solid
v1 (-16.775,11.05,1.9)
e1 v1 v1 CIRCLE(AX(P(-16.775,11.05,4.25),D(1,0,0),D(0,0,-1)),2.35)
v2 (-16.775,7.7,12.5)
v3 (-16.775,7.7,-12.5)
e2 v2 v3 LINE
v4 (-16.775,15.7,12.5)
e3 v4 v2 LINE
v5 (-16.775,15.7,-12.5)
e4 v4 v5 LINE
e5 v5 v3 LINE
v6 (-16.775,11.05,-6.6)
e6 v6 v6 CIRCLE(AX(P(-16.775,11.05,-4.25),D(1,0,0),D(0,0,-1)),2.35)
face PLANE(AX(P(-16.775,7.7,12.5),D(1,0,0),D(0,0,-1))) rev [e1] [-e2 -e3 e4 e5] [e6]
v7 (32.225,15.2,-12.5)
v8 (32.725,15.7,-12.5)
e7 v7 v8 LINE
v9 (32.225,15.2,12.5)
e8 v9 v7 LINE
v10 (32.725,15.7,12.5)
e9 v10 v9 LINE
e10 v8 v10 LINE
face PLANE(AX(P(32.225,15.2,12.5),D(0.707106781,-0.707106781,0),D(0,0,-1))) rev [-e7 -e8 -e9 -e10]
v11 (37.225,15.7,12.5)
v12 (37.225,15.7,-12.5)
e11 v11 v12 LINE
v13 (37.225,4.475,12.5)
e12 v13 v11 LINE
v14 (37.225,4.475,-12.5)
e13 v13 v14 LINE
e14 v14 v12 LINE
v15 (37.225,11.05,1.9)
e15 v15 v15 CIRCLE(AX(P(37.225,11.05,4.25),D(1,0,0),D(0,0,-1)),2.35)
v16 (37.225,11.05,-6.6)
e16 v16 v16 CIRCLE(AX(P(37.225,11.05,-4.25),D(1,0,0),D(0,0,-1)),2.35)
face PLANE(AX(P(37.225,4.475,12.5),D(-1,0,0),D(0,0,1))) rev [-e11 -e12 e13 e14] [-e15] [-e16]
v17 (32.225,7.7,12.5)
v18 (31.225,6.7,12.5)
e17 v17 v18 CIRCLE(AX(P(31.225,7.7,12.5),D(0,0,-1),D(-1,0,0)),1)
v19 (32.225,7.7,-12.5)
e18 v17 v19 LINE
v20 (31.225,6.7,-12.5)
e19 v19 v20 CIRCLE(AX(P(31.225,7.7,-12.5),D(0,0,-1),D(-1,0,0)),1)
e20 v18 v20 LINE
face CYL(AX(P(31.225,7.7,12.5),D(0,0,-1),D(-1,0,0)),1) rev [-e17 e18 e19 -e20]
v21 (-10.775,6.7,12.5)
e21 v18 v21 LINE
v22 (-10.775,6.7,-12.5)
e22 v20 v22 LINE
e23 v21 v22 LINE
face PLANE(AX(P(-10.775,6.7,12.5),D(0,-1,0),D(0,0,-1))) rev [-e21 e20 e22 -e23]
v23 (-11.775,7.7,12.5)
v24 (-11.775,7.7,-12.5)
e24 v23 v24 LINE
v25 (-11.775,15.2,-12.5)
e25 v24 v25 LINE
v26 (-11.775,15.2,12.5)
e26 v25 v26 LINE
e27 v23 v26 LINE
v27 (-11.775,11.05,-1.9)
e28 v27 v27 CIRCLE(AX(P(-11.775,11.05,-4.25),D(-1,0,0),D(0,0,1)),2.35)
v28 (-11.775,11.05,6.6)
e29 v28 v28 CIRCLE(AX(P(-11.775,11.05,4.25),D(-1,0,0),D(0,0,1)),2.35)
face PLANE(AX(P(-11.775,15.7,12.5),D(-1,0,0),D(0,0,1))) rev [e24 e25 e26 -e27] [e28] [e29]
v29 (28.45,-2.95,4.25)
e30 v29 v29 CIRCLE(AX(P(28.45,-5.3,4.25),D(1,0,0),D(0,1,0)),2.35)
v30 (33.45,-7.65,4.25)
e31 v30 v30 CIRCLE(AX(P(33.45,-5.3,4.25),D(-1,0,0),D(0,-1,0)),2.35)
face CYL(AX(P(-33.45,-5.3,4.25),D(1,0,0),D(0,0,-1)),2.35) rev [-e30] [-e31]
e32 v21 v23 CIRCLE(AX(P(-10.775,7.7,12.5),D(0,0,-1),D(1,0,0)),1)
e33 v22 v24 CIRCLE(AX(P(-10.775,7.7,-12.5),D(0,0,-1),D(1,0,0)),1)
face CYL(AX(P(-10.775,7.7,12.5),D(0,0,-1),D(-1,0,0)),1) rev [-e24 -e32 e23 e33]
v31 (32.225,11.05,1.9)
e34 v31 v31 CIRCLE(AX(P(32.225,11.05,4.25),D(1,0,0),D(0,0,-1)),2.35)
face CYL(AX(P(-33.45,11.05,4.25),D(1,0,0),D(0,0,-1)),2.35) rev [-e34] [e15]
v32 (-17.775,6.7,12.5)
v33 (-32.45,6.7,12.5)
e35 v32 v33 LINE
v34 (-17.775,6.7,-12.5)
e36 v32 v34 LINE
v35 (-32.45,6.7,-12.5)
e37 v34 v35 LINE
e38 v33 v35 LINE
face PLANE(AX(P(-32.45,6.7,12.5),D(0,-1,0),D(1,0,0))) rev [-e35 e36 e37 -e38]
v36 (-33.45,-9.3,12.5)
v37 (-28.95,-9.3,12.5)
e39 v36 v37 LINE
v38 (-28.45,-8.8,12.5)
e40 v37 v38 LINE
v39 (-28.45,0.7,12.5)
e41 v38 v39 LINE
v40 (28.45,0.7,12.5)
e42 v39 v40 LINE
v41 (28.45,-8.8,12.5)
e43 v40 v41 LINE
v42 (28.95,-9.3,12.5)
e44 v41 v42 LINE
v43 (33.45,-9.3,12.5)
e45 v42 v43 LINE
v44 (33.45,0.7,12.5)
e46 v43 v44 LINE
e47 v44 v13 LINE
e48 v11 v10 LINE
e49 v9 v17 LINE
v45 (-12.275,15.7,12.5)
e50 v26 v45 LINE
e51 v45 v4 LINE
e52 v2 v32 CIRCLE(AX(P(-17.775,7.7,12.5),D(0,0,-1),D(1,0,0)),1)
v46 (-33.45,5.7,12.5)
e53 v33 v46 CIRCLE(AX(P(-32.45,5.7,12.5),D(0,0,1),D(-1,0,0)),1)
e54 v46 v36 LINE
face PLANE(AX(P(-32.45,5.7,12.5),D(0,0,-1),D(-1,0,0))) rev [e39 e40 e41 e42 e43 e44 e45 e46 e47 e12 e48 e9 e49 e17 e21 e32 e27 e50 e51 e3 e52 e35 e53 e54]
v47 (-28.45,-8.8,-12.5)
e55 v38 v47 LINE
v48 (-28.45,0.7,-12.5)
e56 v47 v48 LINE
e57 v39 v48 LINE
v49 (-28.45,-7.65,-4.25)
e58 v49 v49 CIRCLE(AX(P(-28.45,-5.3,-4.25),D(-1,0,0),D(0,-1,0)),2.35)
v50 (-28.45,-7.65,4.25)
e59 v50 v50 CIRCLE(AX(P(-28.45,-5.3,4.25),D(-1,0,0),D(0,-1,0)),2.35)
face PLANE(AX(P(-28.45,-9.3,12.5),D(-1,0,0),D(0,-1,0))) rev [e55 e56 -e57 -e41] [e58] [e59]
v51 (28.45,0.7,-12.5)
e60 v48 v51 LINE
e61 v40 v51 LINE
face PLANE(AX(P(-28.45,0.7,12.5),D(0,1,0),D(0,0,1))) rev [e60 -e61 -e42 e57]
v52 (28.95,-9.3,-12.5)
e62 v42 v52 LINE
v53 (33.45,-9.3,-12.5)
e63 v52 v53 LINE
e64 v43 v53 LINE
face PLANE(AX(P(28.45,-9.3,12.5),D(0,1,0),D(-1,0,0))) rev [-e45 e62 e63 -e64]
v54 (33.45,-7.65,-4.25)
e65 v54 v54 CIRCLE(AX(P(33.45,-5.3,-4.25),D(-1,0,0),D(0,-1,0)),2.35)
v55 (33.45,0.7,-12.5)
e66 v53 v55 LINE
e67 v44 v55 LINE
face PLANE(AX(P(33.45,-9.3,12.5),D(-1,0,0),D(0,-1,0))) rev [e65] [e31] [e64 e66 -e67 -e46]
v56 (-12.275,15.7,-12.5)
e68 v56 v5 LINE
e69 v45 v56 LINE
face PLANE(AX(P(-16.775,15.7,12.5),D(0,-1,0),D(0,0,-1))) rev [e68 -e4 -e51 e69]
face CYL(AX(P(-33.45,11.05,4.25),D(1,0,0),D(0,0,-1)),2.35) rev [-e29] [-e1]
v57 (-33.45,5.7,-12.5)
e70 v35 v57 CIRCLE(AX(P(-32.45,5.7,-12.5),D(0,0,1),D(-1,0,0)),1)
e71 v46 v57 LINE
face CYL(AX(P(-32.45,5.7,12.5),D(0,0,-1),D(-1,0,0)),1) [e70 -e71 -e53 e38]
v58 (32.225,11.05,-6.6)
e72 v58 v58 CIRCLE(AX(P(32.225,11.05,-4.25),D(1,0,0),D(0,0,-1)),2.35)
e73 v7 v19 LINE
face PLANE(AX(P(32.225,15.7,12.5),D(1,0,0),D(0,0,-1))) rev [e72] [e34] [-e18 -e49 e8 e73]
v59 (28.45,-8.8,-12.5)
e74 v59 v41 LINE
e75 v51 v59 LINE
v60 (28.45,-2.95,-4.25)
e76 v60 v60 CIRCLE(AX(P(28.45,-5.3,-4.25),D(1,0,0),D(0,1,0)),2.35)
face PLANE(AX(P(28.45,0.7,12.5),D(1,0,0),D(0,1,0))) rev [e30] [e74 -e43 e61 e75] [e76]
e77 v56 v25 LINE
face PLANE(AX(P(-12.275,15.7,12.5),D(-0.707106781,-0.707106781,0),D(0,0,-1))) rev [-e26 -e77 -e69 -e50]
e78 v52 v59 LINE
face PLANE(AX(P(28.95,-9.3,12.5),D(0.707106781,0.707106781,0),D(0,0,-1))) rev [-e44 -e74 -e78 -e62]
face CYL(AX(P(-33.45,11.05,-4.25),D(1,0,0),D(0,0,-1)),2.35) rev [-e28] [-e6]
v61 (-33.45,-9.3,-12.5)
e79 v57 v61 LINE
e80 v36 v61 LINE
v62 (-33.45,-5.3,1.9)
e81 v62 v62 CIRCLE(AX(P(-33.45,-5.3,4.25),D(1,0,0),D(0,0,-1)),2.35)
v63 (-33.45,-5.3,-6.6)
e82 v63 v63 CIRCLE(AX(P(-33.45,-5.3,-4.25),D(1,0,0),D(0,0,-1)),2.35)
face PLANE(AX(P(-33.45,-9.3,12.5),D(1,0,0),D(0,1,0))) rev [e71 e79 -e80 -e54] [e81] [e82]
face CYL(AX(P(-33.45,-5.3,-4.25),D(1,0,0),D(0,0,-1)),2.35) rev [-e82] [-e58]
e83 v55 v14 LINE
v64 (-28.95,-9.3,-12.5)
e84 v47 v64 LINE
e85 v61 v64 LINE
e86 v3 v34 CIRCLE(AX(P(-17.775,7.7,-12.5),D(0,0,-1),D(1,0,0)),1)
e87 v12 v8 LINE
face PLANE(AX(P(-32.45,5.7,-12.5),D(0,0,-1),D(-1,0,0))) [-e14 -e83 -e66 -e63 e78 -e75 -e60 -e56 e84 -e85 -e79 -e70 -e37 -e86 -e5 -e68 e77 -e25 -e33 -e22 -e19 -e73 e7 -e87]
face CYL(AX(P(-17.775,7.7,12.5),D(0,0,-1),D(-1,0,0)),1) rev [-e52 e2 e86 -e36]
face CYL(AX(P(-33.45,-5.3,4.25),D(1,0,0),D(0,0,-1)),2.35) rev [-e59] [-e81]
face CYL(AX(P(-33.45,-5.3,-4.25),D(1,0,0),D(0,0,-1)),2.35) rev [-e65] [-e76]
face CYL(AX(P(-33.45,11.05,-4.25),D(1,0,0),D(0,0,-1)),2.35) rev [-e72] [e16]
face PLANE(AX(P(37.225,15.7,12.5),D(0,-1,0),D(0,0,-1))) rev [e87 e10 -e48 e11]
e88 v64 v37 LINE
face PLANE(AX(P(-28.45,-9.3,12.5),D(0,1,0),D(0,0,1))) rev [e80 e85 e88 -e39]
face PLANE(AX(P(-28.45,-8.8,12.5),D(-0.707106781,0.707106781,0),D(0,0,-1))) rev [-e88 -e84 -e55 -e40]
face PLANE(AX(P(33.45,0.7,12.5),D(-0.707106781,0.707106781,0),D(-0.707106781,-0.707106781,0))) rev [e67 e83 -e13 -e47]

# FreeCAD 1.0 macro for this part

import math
import FreeCAD as App
import Part
import Sketcher

V = App.Vector
Q = App.Units.Quantity


def edges_at(feature, points):
    """Names of the edges that pass closest to the given points."""
    edges = feature.Shape.Edges
    near = lambda p: min(range(len(edges)), key=lambda i: edges[i].distToShape(Part.Vertex(*p))[0])
    return sorted({f"Edge{near(p) + 1}" for p in points})

doc = App.newDocument("Part")
body = doc.addObject("PartDesign::Body", "Body")

# Sketch on XY plane
sketch1 = body.newObject("Sketcher::SketchObject", "Sketch")
sketch1.AttachmentSupport = (doc.getObject("XY_Plane"), [""])
sketch1.MapMode = "FlatFace"
sketch1.addGeometry(Part.LineSegment(V(33.45, 0.7, 0), V(37.225, 4.475, 0)), False)
sketch1.addGeometry(Part.LineSegment(V(37.225, 4.475, 0), V(37.225, 15.7, 0)), False)
sketch1.addGeometry(Part.LineSegment(V(37.225, 15.7, 0), V(32.225, 15.7, 0)), False)
sketch1.addGeometry(Part.LineSegment(V(32.225, 15.7, 0), V(32.225, 7.7, 0)), False)
sketch1.addGeometry(Part.ArcOfCircle(Part.Circle(V(31.225, 7.7, 0), V(0, 0, 1), 1), math.radians(-90), math.radians(0)), False)
sketch1.addGeometry(Part.LineSegment(V(31.225, 6.7, 0), V(-10.775, 6.7, 0)), False)
sketch1.addGeometry(Part.ArcOfCircle(Part.Circle(V(-10.775, 7.7, 0), V(0, 0, 1), 1), math.radians(-180), math.radians(-90)), False)
sketch1.addGeometry(Part.LineSegment(V(-11.775, 7.7, 0), V(-11.775, 15.7, 0)), False)
sketch1.addGeometry(Part.LineSegment(V(-11.775, 15.7, 0), V(-16.775, 15.7, 0)), False)
sketch1.addGeometry(Part.LineSegment(V(-16.775, 15.7, 0), V(-16.775, 7.7, 0)), False)
sketch1.addGeometry(Part.ArcOfCircle(Part.Circle(V(-17.775, 7.7, 0), V(0, 0, 1), 1), math.radians(-90), math.radians(0)), False)
sketch1.addGeometry(Part.LineSegment(V(-17.775, 6.7, 0), V(-32.45, 6.7, 0)), False)
sketch1.addGeometry(Part.ArcOfCircle(Part.Circle(V(-32.45, 5.7, 0), V(0, 0, 1), 1), math.radians(90), math.radians(180)), False)
sketch1.addGeometry(Part.LineSegment(V(-33.45, 5.7, 0), V(-33.45, -9.3, 0)), False)
sketch1.addGeometry(Part.LineSegment(V(-33.45, -9.3, 0), V(-28.45, -9.3, 0)), False)
sketch1.addGeometry(Part.LineSegment(V(-28.45, -9.3, 0), V(-28.45, 0.7, 0)), False)
sketch1.addGeometry(Part.LineSegment(V(-28.45, 0.7, 0), V(28.45, 0.7, 0)), False)
sketch1.addGeometry(Part.LineSegment(V(28.45, 0.7, 0), V(28.45, -9.3, 0)), False)
sketch1.addGeometry(Part.LineSegment(V(28.45, -9.3, 0), V(33.45, -9.3, 0)), False)
sketch1.addGeometry(Part.LineSegment(V(33.45, -9.3, 0), V(33.45, 0.7, 0)), False)
sketch1.addConstraint(Sketcher.Constraint("Coincident", 0, 2, 1, 1))
sketch1.addConstraint(Sketcher.Constraint("Coincident", 1, 2, 2, 1))
sketch1.addConstraint(Sketcher.Constraint("Coincident", 2, 2, 3, 1))
sketch1.addConstraint(Sketcher.Constraint("Tangent", 3, 2, 4, 2))
sketch1.addConstraint(Sketcher.Constraint("Tangent", 4, 1, 5, 1))
sketch1.addConstraint(Sketcher.Constraint("Tangent", 5, 2, 6, 2))
sketch1.addConstraint(Sketcher.Constraint("Tangent", 6, 1, 7, 1))
sketch1.addConstraint(Sketcher.Constraint("Coincident", 7, 2, 8, 1))
sketch1.addConstraint(Sketcher.Constraint("Coincident", 8, 2, 9, 1))
sketch1.addConstraint(Sketcher.Constraint("Tangent", 9, 2, 10, 2))
sketch1.addConstraint(Sketcher.Constraint("Tangent", 10, 1, 11, 1))
sketch1.addConstraint(Sketcher.Constraint("Tangent", 11, 2, 12, 1))
sketch1.addConstraint(Sketcher.Constraint("Tangent", 12, 2, 13, 1))
sketch1.addConstraint(Sketcher.Constraint("Coincident", 13, 2, 14, 1))
sketch1.addConstraint(Sketcher.Constraint("Coincident", 14, 2, 15, 1))
sketch1.addConstraint(Sketcher.Constraint("Coincident", 15, 2, 16, 1))
sketch1.addConstraint(Sketcher.Constraint("Coincident", 16, 2, 17, 1))
sketch1.addConstraint(Sketcher.Constraint("Coincident", 17, 2, 18, 1))
sketch1.addConstraint(Sketcher.Constraint("Coincident", 18, 2, 19, 1))
sketch1.addConstraint(Sketcher.Constraint("Coincident", 19, 2, 0, 1))
sketch1.addConstraint(Sketcher.Constraint("Vertical", 1))
sketch1.addConstraint(Sketcher.Constraint("Horizontal", 2))
sketch1.addConstraint(Sketcher.Constraint("Vertical", 3))
sketch1.addConstraint(Sketcher.Constraint("Horizontal", 5))
sketch1.addConstraint(Sketcher.Constraint("Vertical", 7))
sketch1.addConstraint(Sketcher.Constraint("Horizontal", 8))
sketch1.addConstraint(Sketcher.Constraint("Vertical", 9))
sketch1.addConstraint(Sketcher.Constraint("Horizontal", 11))
sketch1.addConstraint(Sketcher.Constraint("Vertical", 13))
sketch1.addConstraint(Sketcher.Constraint("Horizontal", 14))
sketch1.addConstraint(Sketcher.Constraint("Vertical", 15))
sketch1.addConstraint(Sketcher.Constraint("Horizontal", 16))
sketch1.addConstraint(Sketcher.Constraint("Vertical", 17))
sketch1.addConstraint(Sketcher.Constraint("Horizontal", 18))
sketch1.addConstraint(Sketcher.Constraint("Vertical", 19))
sketch1.addConstraint(Sketcher.Constraint("Equal", 4, 6))
sketch1.addConstraint(Sketcher.Constraint("Equal", 6, 10))
sketch1.addConstraint(Sketcher.Constraint("Equal", 10, 12))
sketch1.addConstraint(Sketcher.Constraint("Symmetric", 14, 2, 17, 2, -2))
sketch1.addConstraint(Sketcher.Constraint("Horizontal", 6, 3, 10, 3))
sketch1.addConstraint(Sketcher.Constraint("Horizontal", 2, 2, 7, 2))
sketch1.addConstraint(Sketcher.Constraint("Horizontal", 16, 2, 19, 2))
sketch1.addConstraint(Sketcher.Constraint("Equal", 2, 8))
sketch1.addConstraint(Sketcher.Constraint("Equal", 8, 14))
sketch1.addConstraint(Sketcher.Constraint("Equal", 14, 18))
sketch1.addConstraint(Sketcher.Constraint("Radius", 4, 1.0))
sketch1.addConstraint(Sketcher.Constraint("DistanceX", 2, 2, 2, 1, 5.0))
sketch1.addConstraint(Sketcher.Constraint("DistanceX", 5, 2, 5, 1, 42.0))
sketch1.addConstraint(Sketcher.Constraint("DistanceY", 3, 2, 3, 1, 8.0))
sketch1.addConstraint(Sketcher.Constraint("DistanceY", 13, 2, 13, 1, 15.0))
sketch1.addConstraint(Sketcher.Constraint("DistanceY", 15, 1, 15, 2, 10.0))
sketch1.addConstraint(Sketcher.Constraint("Angle", 0, Q("45 deg")))
sketch1.addConstraint(Sketcher.Constraint("DistanceX", 16, 1, 16, 2, 56.9))
sketch1.addConstraint(Sketcher.Constraint("DistanceY", -1, 1, 4, 3, 7.7))
sketch1.addConstraint(Sketcher.Constraint("DistanceX", 11, 2, 11, 1, 14.675))
pad1 = body.newObject("PartDesign::Pad", "Pad")
pad1.Profile = sketch1
pad1.Length = 25
pad1.Midplane = True

# Sketch on YZ plane
sketch2 = body.newObject("Sketcher::SketchObject", "Sketch001")
sketch2.AttachmentSupport = (doc.getObject("YZ_Plane"), [""])
sketch2.MapMode = "FlatFace"
sketch2.addGeometry(Part.Circle(V(11.05, 4.25, 0), V(0, 0, 1), 2.35), False)
sketch2.addGeometry(Part.Circle(V(11.05, -4.25, 0), V(0, 0, 1), 2.35), False)
sketch2.addGeometry(Part.Circle(V(-5.3, -4.25, 0), V(0, 0, 1), 2.35), False)
sketch2.addGeometry(Part.Circle(V(-5.3, 4.25, 0), V(0, 0, 1), 2.35), False)
sketch2.addConstraint(Sketcher.Constraint("Equal", 0, 1))
sketch2.addConstraint(Sketcher.Constraint("Equal", 1, 2))
sketch2.addConstraint(Sketcher.Constraint("Equal", 2, 3))
sketch2.addConstraint(Sketcher.Constraint("Symmetric", 0, 3, 1, 3, -1))
sketch2.addConstraint(Sketcher.Constraint("Symmetric", 2, 3, 3, 3, -1))
sketch2.addConstraint(Sketcher.Constraint("Horizontal", 1, 3, 2, 3))
sketch2.addConstraint(Sketcher.Constraint("Diameter", 0, 4.7))
sketch2.addConstraint(Sketcher.Constraint("DistanceX", 2, 3, -1, 1, 5.3))
sketch2.addConstraint(Sketcher.Constraint("DistanceY", 1, 3, 0, 3, 8.5))
sketch2.addConstraint(Sketcher.Constraint("DistanceX", -1, 1, 0, 3, 11.05))
pocket1 = body.newObject("PartDesign::Pocket", "Pocket")
pocket1.Profile = sketch2
pocket1.Type = "ThroughAll"
pocket1.Midplane = True
doc.recompute()

chamfer = body.newObject("PartDesign::Chamfer", "Chamfer")
chamfer.Base = (pocket1, edges_at(pocket1, [
    (-11.775, 15.7, 0),
    (32.225, 15.7, 0),
    (28.45, -9.3, 0),
    (-28.45, -9.3, 0),
]))
chamfer.Size = 0.5

doc.recompute()
